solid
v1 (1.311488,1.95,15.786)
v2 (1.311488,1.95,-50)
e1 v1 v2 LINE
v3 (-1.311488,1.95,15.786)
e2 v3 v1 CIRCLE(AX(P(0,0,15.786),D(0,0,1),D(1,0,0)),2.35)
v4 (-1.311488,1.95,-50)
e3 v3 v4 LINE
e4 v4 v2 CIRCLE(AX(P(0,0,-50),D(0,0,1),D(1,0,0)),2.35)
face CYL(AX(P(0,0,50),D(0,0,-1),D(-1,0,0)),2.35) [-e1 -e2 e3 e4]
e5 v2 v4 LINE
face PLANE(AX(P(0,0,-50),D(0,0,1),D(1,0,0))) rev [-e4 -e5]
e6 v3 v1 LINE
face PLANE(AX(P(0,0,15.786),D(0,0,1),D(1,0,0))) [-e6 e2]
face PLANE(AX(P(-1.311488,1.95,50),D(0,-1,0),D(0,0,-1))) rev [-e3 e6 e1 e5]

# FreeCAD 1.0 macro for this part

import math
import FreeCAD as App
import Part
import Sketcher
from FreeCAD import Vector

doc = App.newDocument("Part")
params = doc.addObject("Spreadsheet::Sheet", "Params")
for row, (alias, value) in enumerate([
    ("sketch1_radius", "2.35 mm"),
    ("pad1_length", "100 mm"),
    ("sketch2_radius", "2.35 mm"),
    ("pocket1_length", "34.214 mm"),
], start=1):
    params.set(f"A{row}", alias)
    params.set(f"B{row}", "=" + value)
    params.setAlias(f"B{row}", alias)

body = doc.addObject("PartDesign::Body", "Body")

# Sketch on XY plane
sketch1 = body.newObject("Sketcher::SketchObject", "Sketch")
sketch1.AttachmentSupport = (doc.getObject("XY_Plane"), [""])
sketch1.MapMode = "FlatFace"
sketch1.addGeometry([
    Part.LineSegment(Vector(1.311488, 1.95, 0), Vector(-1.311488, 1.95, 0)),
    Part.ArcOfCircle(Part.Circle(Vector(0, 0, 0), Vector(0, 0, 1), 2.35), math.radians(123.923112), math.radians(416.076888)),
], False)
sketch1.addConstraint([
    Sketcher.Constraint("Coincident", 0, 1, 1, 2),
    Sketcher.Constraint("Coincident", 1, 1, 0, 2),
    Sketcher.Constraint("Horizontal", 0),
    Sketcher.Constraint("Coincident", 1, 3, -1, 1),
    Sketcher.Constraint("Radius", 1, 2.35),
    Sketcher.Constraint("DistanceY", -1, 1, 0, 1, 1.95),
])
sketch1.setExpression("Constraints[4]", "Params.sketch1_radius")
pad1 = body.newObject("PartDesign::Pad", "Pad")
pad1.Profile = sketch1
pad1.setExpression("Length", "Params.pad1_length")
pad1.Midplane = True

# Sketch on XY plane
sketch2 = body.newObject("Sketcher::SketchObject", "Sketch001")
sketch2.AttachmentSupport = (doc.getObject("XY_Plane"), [""])
sketch2.MapMode = "FlatFace"
sketch2.AttachmentOffset = App.Placement(Vector(0, 0, 50), App.Rotation())
sketch2.addGeometry([
    Part.LineSegment(Vector(1.311488, 1.95, 0), Vector(-1.311488, 1.95, 0)),
    Part.ArcOfCircle(Part.Circle(Vector(0, 0, 0), Vector(0, 0, 1), 2.35), math.radians(123.923112), math.radians(416.076888)),
], False)
sketch2.addConstraint([
    Sketcher.Constraint("Coincident", 0, 1, 1, 2),
    Sketcher.Constraint("Coincident", 1, 1, 0, 2),
    Sketcher.Constraint("Horizontal", 0),
    Sketcher.Constraint("Coincident", 1, 3, -1, 1),
    Sketcher.Constraint("Radius", 1, 2.35),
    Sketcher.Constraint("DistanceY", -1, 1, 0, 1, 1.95),
])
sketch2.setExpression("Constraints[4]", "Params.sketch2_radius")
pocket1 = body.newObject("PartDesign::Pocket", "Pocket")
pocket1.Profile = sketch2
pocket1.setExpression("Length", "Params.pocket1_length")

doc.recompute()
